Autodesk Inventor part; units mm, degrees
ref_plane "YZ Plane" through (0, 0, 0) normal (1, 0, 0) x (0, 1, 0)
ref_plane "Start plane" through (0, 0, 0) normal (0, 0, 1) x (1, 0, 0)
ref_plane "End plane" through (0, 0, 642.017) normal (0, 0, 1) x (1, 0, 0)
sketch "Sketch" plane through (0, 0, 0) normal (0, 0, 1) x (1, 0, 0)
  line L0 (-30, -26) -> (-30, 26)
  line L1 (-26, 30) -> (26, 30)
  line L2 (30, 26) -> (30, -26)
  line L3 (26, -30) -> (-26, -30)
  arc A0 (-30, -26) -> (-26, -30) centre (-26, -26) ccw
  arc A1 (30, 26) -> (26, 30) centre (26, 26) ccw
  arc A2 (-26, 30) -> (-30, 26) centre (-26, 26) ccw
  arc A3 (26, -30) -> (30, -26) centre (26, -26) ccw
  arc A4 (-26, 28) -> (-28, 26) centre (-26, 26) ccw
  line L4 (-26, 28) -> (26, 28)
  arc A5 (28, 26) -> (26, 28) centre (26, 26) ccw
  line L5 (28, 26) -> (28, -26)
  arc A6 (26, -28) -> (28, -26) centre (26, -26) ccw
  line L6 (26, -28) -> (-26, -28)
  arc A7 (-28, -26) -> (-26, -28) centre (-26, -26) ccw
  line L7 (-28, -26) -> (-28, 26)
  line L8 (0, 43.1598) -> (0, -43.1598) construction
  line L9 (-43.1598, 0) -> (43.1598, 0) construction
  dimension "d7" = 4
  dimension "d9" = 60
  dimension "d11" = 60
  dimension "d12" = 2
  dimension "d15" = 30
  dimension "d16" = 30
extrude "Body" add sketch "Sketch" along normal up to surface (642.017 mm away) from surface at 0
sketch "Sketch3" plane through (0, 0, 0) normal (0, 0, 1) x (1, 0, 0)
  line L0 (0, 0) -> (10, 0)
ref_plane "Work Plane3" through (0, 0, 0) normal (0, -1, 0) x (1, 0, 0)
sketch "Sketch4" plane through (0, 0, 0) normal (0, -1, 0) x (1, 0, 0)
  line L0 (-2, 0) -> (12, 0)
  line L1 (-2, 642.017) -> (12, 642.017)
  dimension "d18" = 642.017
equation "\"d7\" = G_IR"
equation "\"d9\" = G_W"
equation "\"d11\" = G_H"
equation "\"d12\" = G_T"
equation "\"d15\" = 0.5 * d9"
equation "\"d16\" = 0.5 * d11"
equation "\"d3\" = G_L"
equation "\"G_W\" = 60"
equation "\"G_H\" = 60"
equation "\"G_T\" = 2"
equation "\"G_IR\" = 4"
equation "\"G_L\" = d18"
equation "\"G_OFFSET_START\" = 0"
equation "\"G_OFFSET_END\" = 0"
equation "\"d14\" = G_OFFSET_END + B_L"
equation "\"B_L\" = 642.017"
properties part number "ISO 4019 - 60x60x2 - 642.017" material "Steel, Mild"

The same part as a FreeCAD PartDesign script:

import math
import FreeCAD as App
import Part
import Sketcher
from FreeCAD import Vector
Q = App.Units.Quantity

doc = App.newDocument("Part")
params = doc.addObject("Spreadsheet::Sheet", "Params")
for row, (alias, value) in enumerate([
    ("sketch1_radius", "4 mm"),
    ("sketch1_radius2", "2 mm"),
    ("pad1_length", "642.017 mm"),
], start=1):
    params.set(f"A{row}", alias)
    params.set(f"B{row}", "=" + value)
    params.setAlias(f"B{row}", alias)

body = doc.addObject("PartDesign::Body", "Body")

# Sketch on XY plane
sketch1 = doc.addObject("Sketcher::SketchObject", "Sketch")
body.addObject(sketch1)
sketch1.AttachmentSupport = (doc.XY_Plane, [""])
sketch1.MapMode = "FlatFace"
sketch1.addGeometry([
    Part.LineSegment(Vector(-30, 26, 0), Vector(-30, -26, 0)),  # 0
    Part.ArcOfCircle(Part.Circle(Vector(-26, -26, 0), Vector(0, 0, 1), 4), math.radians(180), math.radians(270)),  # 1
    Part.LineSegment(Vector(-26, -30, 0), Vector(26, -30, 0)),  # 2
    Part.ArcOfCircle(Part.Circle(Vector(26, -26, 0), Vector(0, 0, 1), 4), math.radians(-90), math.radians(0)),  # 3
    Part.LineSegment(Vector(30, -26, 0), Vector(30, 26, 0)),  # 4
    Part.ArcOfCircle(Part.Circle(Vector(26, 26, 0), Vector(0, 0, 1), 4), math.radians(0), math.radians(90)),  # 5
    Part.LineSegment(Vector(26, 30, 0), Vector(-26, 30, 0)),  # 6
    Part.ArcOfCircle(Part.Circle(Vector(-26, 26, 0), Vector(0, 0, 1), 4), math.radians(90), math.radians(180)),  # 7
    Part.ArcOfCircle(Part.Circle(Vector(-26, 26, 0), Vector(0, 0, 1), 2), math.radians(90), math.radians(180)),  # 8
    Part.LineSegment(Vector(-26, 28, 0), Vector(26, 28, 0)),  # 9
    Part.ArcOfCircle(Part.Circle(Vector(26, 26, 0), Vector(0, 0, 1), 2), math.radians(0), math.radians(90)),  # 10
    Part.LineSegment(Vector(28, 26, 0), Vector(28, -26, 0)),  # 11
    Part.ArcOfCircle(Part.Circle(Vector(26, -26, 0), Vector(0, 0, 1), 2), math.radians(-90), math.radians(0)),  # 12
    Part.LineSegment(Vector(26, -28, 0), Vector(-26, -28, 0)),  # 13
    Part.ArcOfCircle(Part.Circle(Vector(-26, -26, 0), Vector(0, 0, 1), 2), math.radians(180), math.radians(270)),  # 14
    Part.LineSegment(Vector(-28, -26, 0), Vector(-28, 26, 0)),  # 15
], False)
sketch1.addConstraint([
    Sketcher.Constraint("Tangent", 0, 2, 1, 1),
    Sketcher.Constraint("Tangent", 1, 2, 2, 1),
    Sketcher.Constraint("Tangent", 2, 2, 3, 1),
    Sketcher.Constraint("Tangent", 3, 2, 4, 1),
    Sketcher.Constraint("Tangent", 4, 2, 5, 1),
    Sketcher.Constraint("Tangent", 5, 2, 6, 1),
    Sketcher.Constraint("Tangent", 6, 2, 7, 1),
    Sketcher.Constraint("Tangent", 7, 2, 0, 1),
    Sketcher.Constraint("Tangent", 8, 1, 9, 1),
    Sketcher.Constraint("Tangent", 9, 2, 10, 2),
    Sketcher.Constraint("Tangent", 10, 1, 11, 1),
    Sketcher.Constraint("Tangent", 11, 2, 12, 2),
    Sketcher.Constraint("Tangent", 12, 1, 13, 1),
    Sketcher.Constraint("Tangent", 13, 2, 14, 2),
    Sketcher.Constraint("Tangent", 14, 1, 15, 1),
    Sketcher.Constraint("Tangent", 15, 2, 8, 2),
    Sketcher.Constraint("Vertical", 0),
    Sketcher.Constraint("Horizontal", 2),
    Sketcher.Constraint("Vertical", 4),
    Sketcher.Constraint("Horizontal", 6),
    Sketcher.Constraint("Horizontal", 9),
    Sketcher.Constraint("Vertical", 11),
    Sketcher.Constraint("Horizontal", 13),
    Sketcher.Constraint("Vertical", 15),
    Sketcher.Constraint("Coincident", 8, 3, 7, 3),
    Sketcher.Constraint("Coincident", 10, 3, 5, 3),
    Sketcher.Constraint("Coincident", 12, 3, 3, 3),
    Sketcher.Constraint("Equal", 1, 3),
    Sketcher.Constraint("Equal", 3, 5),
    Sketcher.Constraint("Equal", 5, 7),
    Sketcher.Constraint("Equal", 12, 14),
    Sketcher.Constraint("Symmetric", 1, 3, 5, 3, -1, 1),
    Sketcher.Constraint("Equal", 13, 0),
    Sketcher.Constraint("Radius", 1, Q("4 mm")),
    Sketcher.Constraint("Radius", 8, Q("2 mm")),
    Sketcher.Constraint("DistanceX", 0, 2, -1, 1, Q("30 mm")),
])
sketch1.setExpression("Constraints[33]", "Params.sketch1_radius")
sketch1.setExpression("Constraints[34]", "Params.sketch1_radius2")
pad1 = doc.addObject("PartDesign::Pad", "Pad")
body.addObject(pad1)
pad1.Profile = sketch1
pad1.setExpression("Length", "Params.pad1_length")

doc.recompute()
